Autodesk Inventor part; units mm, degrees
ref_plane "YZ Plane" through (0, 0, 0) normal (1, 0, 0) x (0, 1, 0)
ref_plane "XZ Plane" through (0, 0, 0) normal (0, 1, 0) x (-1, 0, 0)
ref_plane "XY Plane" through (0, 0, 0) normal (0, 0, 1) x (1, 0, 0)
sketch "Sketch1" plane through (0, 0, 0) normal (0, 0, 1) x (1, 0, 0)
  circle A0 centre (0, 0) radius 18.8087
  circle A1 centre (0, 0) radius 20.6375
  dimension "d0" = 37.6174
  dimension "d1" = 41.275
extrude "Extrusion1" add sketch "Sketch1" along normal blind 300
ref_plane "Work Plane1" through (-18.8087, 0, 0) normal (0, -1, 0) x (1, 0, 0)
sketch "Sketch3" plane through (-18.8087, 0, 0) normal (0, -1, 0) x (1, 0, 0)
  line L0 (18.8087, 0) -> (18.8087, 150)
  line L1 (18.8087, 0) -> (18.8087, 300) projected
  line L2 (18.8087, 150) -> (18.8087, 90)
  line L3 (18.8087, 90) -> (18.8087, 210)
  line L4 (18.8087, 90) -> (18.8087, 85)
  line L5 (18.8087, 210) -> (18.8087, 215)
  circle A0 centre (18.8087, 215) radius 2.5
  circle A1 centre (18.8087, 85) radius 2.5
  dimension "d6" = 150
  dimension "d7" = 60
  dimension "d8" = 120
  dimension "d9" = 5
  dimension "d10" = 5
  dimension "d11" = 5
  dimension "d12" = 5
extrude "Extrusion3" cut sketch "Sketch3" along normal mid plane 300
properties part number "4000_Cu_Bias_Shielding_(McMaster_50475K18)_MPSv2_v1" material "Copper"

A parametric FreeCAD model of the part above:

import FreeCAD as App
import Part
import Sketcher

doc = App.newDocument("Part")
body = doc.addObject("PartDesign::Body", "Body")

# Sketch on XY plane
sketch1 = doc.addObject("Sketcher::SketchObject", "Sketch")
body.addObject(sketch1)
sketch1.AttachmentSupport = (doc.XY_Plane, [""])
sketch1.MapMode = "FlatFace"
sketch1.addGeometry([
    Part.Circle(App.Vector(0, 0, 0), App.Vector(0, 0, 1), 20.6375),
    Part.Circle(App.Vector(0, 0, 0), App.Vector(0, 0, 1), 18.8087),
], False)
sketch1.addConstraint([
    Sketcher.Constraint("Coincident", 0, 3, -1, 1),
    Sketcher.Constraint("Coincident", 1, 3, -1, 1),
    Sketcher.Constraint("Diameter", 0, 41.275),
    Sketcher.Constraint("Diameter", 1, 37.6174),
])
pad1 = doc.addObject("PartDesign::Pad", "Pad")
body.addObject(pad1)
pad1.Profile = sketch1
pad1.Length = 300

# Sketch on XZ plane
sketch2 = doc.addObject("Sketcher::SketchObject", "Sketch001")
body.addObject(sketch2)
sketch2.AttachmentSupport = (doc.XZ_Plane, [""])
sketch2.MapMode = "FlatFace"
sketch2.addGeometry([
    Part.Circle(App.Vector(0, 215, 0), App.Vector(0, 0, 1), 2.5),
    Part.Circle(App.Vector(0, 85, 0), App.Vector(0, 0, 1), 2.5),
], False)
sketch2.addConstraint([
    Sketcher.Constraint("Equal", 0, 1),
    Sketcher.Constraint("PointOnObject", 0, 3, -2),
    Sketcher.Constraint("PointOnObject", 1, 3, -2),
    Sketcher.Constraint("Diameter", 0, 5.0),
    Sketcher.Constraint("DistanceY", -1, 1, 0, 3, 215.0),
    Sketcher.Constraint("DistanceY", -1, 1, 1, 3, 85.0),
])
pocket1 = doc.addObject("PartDesign::Pocket", "Pocket")
body.addObject(pocket1)
pocket1.Profile = sketch2
pocket1.Length = 300
pocket1.Midplane = True

doc.recompute()
